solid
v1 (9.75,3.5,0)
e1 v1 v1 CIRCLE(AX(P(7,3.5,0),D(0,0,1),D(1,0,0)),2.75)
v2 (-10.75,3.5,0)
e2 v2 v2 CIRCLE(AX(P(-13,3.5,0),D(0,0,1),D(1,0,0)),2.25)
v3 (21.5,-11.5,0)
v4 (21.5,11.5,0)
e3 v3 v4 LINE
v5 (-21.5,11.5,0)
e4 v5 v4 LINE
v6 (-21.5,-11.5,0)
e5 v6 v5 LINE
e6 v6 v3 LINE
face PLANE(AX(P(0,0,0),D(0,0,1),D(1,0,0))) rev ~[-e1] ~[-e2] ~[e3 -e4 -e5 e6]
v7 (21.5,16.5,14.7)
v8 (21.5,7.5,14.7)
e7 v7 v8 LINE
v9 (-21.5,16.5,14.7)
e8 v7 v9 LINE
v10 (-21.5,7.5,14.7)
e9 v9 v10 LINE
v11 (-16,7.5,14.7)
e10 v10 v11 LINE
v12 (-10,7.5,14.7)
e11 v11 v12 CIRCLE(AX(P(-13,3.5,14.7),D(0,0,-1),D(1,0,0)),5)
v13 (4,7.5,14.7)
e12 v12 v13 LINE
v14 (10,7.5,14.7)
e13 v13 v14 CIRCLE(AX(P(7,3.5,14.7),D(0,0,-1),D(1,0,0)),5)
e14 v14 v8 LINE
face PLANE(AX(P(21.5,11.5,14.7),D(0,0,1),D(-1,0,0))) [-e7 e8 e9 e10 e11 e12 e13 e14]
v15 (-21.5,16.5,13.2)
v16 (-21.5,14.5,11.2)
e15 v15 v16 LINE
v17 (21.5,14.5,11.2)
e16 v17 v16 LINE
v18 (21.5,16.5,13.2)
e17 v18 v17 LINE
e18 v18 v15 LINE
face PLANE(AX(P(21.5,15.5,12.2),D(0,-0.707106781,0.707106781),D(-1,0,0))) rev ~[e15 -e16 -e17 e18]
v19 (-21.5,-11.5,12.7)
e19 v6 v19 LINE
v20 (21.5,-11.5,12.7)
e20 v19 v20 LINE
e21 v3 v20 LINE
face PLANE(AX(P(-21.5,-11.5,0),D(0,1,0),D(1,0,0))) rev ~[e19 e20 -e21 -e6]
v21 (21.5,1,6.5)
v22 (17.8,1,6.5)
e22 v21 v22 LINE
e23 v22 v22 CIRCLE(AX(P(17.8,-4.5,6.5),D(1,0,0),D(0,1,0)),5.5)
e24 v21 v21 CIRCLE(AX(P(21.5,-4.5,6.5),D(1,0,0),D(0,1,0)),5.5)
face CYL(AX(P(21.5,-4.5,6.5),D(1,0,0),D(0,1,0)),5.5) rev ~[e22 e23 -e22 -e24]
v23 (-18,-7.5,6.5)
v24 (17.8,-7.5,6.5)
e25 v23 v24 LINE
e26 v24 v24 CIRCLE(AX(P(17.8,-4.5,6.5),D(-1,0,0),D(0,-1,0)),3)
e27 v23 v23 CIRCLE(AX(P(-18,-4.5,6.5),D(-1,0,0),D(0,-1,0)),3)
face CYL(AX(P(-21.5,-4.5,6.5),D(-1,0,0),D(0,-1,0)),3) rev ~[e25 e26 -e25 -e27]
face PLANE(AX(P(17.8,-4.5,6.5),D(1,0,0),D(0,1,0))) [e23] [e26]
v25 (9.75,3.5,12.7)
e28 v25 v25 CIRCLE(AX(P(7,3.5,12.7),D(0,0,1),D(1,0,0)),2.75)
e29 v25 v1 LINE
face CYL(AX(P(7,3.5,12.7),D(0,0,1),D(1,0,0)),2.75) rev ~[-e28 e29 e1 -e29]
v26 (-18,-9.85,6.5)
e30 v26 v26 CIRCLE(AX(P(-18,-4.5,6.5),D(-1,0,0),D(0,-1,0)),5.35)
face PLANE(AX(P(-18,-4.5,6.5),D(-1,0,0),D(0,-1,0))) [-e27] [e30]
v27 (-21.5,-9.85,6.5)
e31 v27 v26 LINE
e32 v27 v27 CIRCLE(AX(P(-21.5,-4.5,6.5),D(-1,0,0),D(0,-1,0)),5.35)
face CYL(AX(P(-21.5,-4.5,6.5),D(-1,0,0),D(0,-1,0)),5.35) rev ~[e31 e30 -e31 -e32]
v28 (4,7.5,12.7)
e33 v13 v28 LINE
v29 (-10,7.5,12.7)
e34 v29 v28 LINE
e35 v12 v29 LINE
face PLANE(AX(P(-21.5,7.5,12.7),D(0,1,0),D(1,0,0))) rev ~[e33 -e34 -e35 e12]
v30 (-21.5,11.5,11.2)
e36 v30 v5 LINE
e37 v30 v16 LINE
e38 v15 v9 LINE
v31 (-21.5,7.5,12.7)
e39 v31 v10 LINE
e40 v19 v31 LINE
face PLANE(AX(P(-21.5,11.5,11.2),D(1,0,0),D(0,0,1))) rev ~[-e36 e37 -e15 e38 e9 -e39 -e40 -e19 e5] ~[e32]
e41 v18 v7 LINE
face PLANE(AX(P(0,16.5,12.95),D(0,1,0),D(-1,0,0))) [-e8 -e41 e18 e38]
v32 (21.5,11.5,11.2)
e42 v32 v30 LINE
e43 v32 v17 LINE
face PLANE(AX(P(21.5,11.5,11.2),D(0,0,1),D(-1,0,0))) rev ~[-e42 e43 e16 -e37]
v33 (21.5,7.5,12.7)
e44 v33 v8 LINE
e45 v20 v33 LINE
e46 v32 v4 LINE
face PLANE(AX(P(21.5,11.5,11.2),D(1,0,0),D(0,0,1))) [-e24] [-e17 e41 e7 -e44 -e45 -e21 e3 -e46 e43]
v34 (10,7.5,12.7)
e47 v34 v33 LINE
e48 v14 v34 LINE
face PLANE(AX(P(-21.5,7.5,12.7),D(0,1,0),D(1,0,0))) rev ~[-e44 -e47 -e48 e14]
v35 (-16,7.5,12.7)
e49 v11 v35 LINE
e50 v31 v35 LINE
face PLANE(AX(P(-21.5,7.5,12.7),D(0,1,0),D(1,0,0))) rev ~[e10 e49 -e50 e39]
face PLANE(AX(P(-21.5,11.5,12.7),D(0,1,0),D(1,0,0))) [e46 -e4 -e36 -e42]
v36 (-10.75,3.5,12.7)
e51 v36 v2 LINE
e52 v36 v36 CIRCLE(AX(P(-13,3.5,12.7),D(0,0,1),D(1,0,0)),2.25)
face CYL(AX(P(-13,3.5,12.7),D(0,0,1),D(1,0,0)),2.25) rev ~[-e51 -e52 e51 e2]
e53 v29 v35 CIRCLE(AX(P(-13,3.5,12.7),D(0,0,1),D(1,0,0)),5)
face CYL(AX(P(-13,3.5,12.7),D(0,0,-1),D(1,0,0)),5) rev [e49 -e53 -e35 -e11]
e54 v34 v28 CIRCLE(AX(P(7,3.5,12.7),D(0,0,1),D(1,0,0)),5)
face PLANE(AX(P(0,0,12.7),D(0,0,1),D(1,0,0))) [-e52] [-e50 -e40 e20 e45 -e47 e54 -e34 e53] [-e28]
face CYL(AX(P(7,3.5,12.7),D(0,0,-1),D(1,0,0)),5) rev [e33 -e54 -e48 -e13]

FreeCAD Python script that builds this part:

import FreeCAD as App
import Part
import Sketcher

V = App.Vector


def edges_at(feature, points):
    """Names of the edges that pass closest to the given points."""
    edges = feature.Shape.Edges
    near = lambda p: min(range(len(edges)), key=lambda i: edges[i].distToShape(Part.Vertex(*p))[0])
    return sorted({f"Edge{near(p) + 1}" for p in points})


def add_polygon(sketch, points):
    """Adds a closed chain of lines whose ends are joined by coincident constraints."""
    first, n = sketch.GeometryCount, len(points)
    for a, b in zip(points, points[1:] + points[:1]):
        sketch.addGeometry(Part.LineSegment(App.Vector(*a, 0), App.Vector(*b, 0)), False)
    for i in range(n):
        sketch.addConstraint(Sketcher.Constraint("Coincident", first + i, 2, first + (i + 1) % n, 1))

doc = App.newDocument("Part")
params = doc.addObject("Spreadsheet::Sheet", "Params")
for row, (alias, value) in enumerate([
    ("sketch1_width", "43 mm"),
    ("sketch1_height", "23 mm"),
    ("pad1_length", "12.7 mm"),
    ("sketch2_diameter", "5.5 mm"),
    ("sketch2_diameter2", "4.5 mm"),
    ("pocket1_length", "25.4 mm"),
    ("sketch3_diameter", "6 mm"),
    ("pocket2_length", "50.8 mm"),
    ("sketch4_diameter", "10.7 mm"),
    ("pocket3_length", "3.5 mm"),
    ("sketch5_diameter", "11 mm"),
    ("pocket4_length", "3.7 mm"),
    ("sketch6_width", "43 mm"),
    ("sketch6_height", "4 mm"),
    ("pad2_length", "2 mm"),
    ("sketch7_width", "43 mm"),
    ("sketch7_height", "3.5 mm"),
    ("pad3_length", "5 mm"),
    ("chamfer_size", "2 mm"),
    ("sketch8_diameter", "10 mm"),
    ("pocket5_length", "25 mm"),
], start=1):
    params.set(f"A{row}", alias)
    params.set(f"B{row}", "=" + value)
    params.setAlias(f"B{row}", alias)

body = doc.addObject("PartDesign::Body", "Body")

# Sketch on XY plane
sketch1 = doc.addObject("Sketcher::SketchObject", "Sketch")
body.addObject(sketch1)
sketch1.AttachmentSupport = (doc.XY_Plane, [""])
sketch1.MapMode = "FlatFace"
add_polygon(sketch1, [(-22, 12), (-22, -12), (22, -12), (22, 12)])  # lines 0-3
sketch1.addConstraint([
    Sketcher.Constraint("Vertical", 0),
    Sketcher.Constraint("Horizontal", 1),
    Sketcher.Constraint("Vertical", 2),
    Sketcher.Constraint("Horizontal", 3),
    Sketcher.Constraint("Symmetric", 0, 2, 2, 2, -1, 1),
    Sketcher.Constraint("DistanceX", 1, 1, 1, 2, 43.0),
    Sketcher.Constraint("DistanceY", 0, 2, 0, 1, 23.0),
])
sketch1.setExpression("Constraints[9]", "Params.sketch1_width")
sketch1.setExpression("Constraints[10]", "Params.sketch1_height")
pad1 = doc.addObject("PartDesign::Pad", "Pad")
body.addObject(pad1)
pad1.Profile = sketch1
pad1.setExpression("Length", "Params.pad1_length")

# Sketch on XY plane
sketch2 = doc.addObject("Sketcher::SketchObject", "Sketch001")
body.addObject(sketch2)
sketch2.AttachmentSupport = (doc.XY_Plane, [""])
sketch2.MapMode = "FlatFace"
sketch2.AttachmentOffset = App.Placement(V(0, 0, 12.7), App.Rotation())
sketch2.addGeometry([
    Part.Circle(V(7, 3.5, 0), V(0, 0, 1), 2.8),
    Part.Circle(V(-13, 3.5, 0), V(0, 0, 1), 2.2),
], False)
sketch2.addConstraint([
    Sketcher.Constraint("Horizontal", 0, 3, 1, 3),
    Sketcher.Constraint("Diameter", 0, 5.5),
    Sketcher.Constraint("Diameter", 1, 4.5),
    Sketcher.Constraint("DistanceX", -1, 1, 0, 3, 7.0),
    Sketcher.Constraint("DistanceX", 1, 3, -1, 1, 13.0),
    Sketcher.Constraint("DistanceY", -1, 1, 0, 3, 3.5),
])
sketch2.setExpression("Constraints[1]", "Params.sketch2_diameter")
sketch2.setExpression("Constraints[2]", "Params.sketch2_diameter2")
pocket1 = doc.addObject("PartDesign::Pocket", "Pocket")
body.addObject(pocket1)
pocket1.Profile = sketch2
pocket1.setExpression("Length", "Params.pocket1_length")

# Sketch on YZ plane
sketch3 = doc.addObject("Sketcher::SketchObject", "Sketch002")
body.addObject(sketch3)
sketch3.AttachmentSupport = (doc.YZ_Plane, [""])
sketch3.MapMode = "FlatFace"
sketch3.AttachmentOffset = App.Placement(V(0, 0, -21.5), App.Rotation())
sketch3.addGeometry(Part.Circle(V(-4.5, 6.5, 0), V(0, 0, 1), 3), False)
sketch3.addConstraint([
    Sketcher.Constraint("Diameter", 0, 6.0),
    Sketcher.Constraint("DistanceX", 0, 3, -1, 1, 4.5),
    Sketcher.Constraint("DistanceY", -1, 1, 0, 3, 6.5),
])
sketch3.setExpression("Constraints[0]", "Params.sketch3_diameter")
pocket2 = doc.addObject("PartDesign::Pocket", "Pocket001")
body.addObject(pocket2)
pocket2.Profile = sketch3
pocket2.setExpression("Length", "Params.pocket2_length")
pocket2.Reversed = True

# Sketch on YZ plane
sketch4 = doc.addObject("Sketcher::SketchObject", "Sketch003")
body.addObject(sketch4)
sketch4.AttachmentSupport = (doc.YZ_Plane, [""])
sketch4.MapMode = "FlatFace"
sketch4.AttachmentOffset = App.Placement(V(0, 0, -21.5), App.Rotation())
sketch4.addGeometry(Part.Circle(V(-4, 6, 0), V(0, 0, 1), 5), False)
sketch4.addConstraint([
    Sketcher.Constraint("Diameter", 0, 10.7),
    Sketcher.Constraint("DistanceX", 0, 3, -1, 1, 4.5),
    Sketcher.Constraint("DistanceY", -1, 1, 0, 3, 6.5),
])
sketch4.setExpression("Constraints[0]", "Params.sketch4_diameter")
pocket3 = doc.addObject("PartDesign::Pocket", "Pocket002")
body.addObject(pocket3)
pocket3.Profile = sketch4
pocket3.setExpression("Length", "Params.pocket3_length")
pocket3.Reversed = True

# Sketch on YZ plane
sketch5 = doc.addObject("Sketcher::SketchObject", "Sketch004")
body.addObject(sketch5)
sketch5.AttachmentSupport = (doc.YZ_Plane, [""])
sketch5.MapMode = "FlatFace"
sketch5.AttachmentOffset = App.Placement(V(0, 0, 21.5), App.Rotation())
sketch5.addGeometry(Part.Circle(V(-4, 6, 0), V(0, 0, 1), 6), False)
sketch5.addConstraint([
    Sketcher.Constraint("Diameter", 0, 11.0),
    Sketcher.Constraint("DistanceX", 0, 3, -1, 1, 4.5),
    Sketcher.Constraint("DistanceY", -1, 1, 0, 3, 6.5),
])
sketch5.setExpression("Constraints[0]", "Params.sketch5_diameter")
pocket4 = doc.addObject("PartDesign::Pocket", "Pocket003")
body.addObject(pocket4)
pocket4.Profile = sketch5
pocket4.setExpression("Length", "Params.pocket4_length")

# Sketch on XY plane
sketch6 = doc.addObject("Sketcher::SketchObject", "Sketch005")
body.addObject(sketch6)
sketch6.AttachmentSupport = (doc.XY_Plane, [""])
sketch6.MapMode = "FlatFace"
sketch6.AttachmentOffset = App.Placement(V(0, 0, 12.7), App.Rotation())
add_polygon(sketch6, [(-21.5, 11.5), (-21.5, 7.5), (21.5, 7.5), (21.5, 11.5)])  # lines 0-3
sketch6.addConstraint([
    Sketcher.Constraint("Vertical", 0),
    Sketcher.Constraint("Horizontal", 1),
    Sketcher.Constraint("Vertical", 2),
    Sketcher.Constraint("Horizontal", 3),
    Sketcher.Constraint("DistanceX", 1, 1, 1, 2, 43.0),
    Sketcher.Constraint("DistanceY", 0, 2, 0, 1, 4.0),
    Sketcher.Constraint("DistanceX", 0, 2, -1, 1, 21.5),
    Sketcher.Constraint("DistanceY", -1, 1, 0, 2, 7.5),
])
sketch6.setExpression("Constraints[8]", "Params.sketch6_width")
sketch6.setExpression("Constraints[9]", "Params.sketch6_height")
pad2 = doc.addObject("PartDesign::Pad", "Pad001")
body.addObject(pad2)
pad2.Profile = sketch6
pad2.setExpression("Length", "Params.pad2_length")

# Sketch on XZ plane
sketch7 = doc.addObject("Sketcher::SketchObject", "Sketch006")
body.addObject(sketch7)
sketch7.AttachmentSupport = (doc.XZ_Plane, [""])
sketch7.MapMode = "FlatFace"
sketch7.AttachmentOffset = App.Placement(V(0, 0, -11.5), App.Rotation())
add_polygon(sketch7, [(21.5, 14.7), (21.5, 11.2), (-21.5, 11.2), (-21.5, 14.7)])  # lines 0-3
sketch7.addConstraint([
    Sketcher.Constraint("Vertical", 0),
    Sketcher.Constraint("Horizontal", 1),
    Sketcher.Constraint("Vertical", 2),
    Sketcher.Constraint("Horizontal", 3),
    Sketcher.Constraint("DistanceX", 1, 2, 1, 1, 43.0),
    Sketcher.Constraint("DistanceY", 0, 2, 0, 1, 3.5),
    Sketcher.Constraint("DistanceX", -1, 1, 0, 2, 21.5),
    Sketcher.Constraint("DistanceY", -1, 1, 0, 2, 11.2),
])
sketch7.setExpression("Constraints[8]", "Params.sketch7_width")
sketch7.setExpression("Constraints[9]", "Params.sketch7_height")
pad3 = doc.addObject("PartDesign::Pad", "Pad002")
body.addObject(pad3)
pad3.Profile = sketch7
pad3.setExpression("Length", "Params.pad3_length")
pad3.Reversed = True
doc.recompute()

chamfer = doc.addObject("PartDesign::Chamfer", "Chamfer")
body.addObject(chamfer)
chamfer.Base = (pad3, edges_at(pad3, [(0, 16.5, 11.2)]))
chamfer.setExpression("Size", "Params.chamfer_size")

# Sketch on XY plane
sketch8 = doc.addObject("Sketcher::SketchObject", "Sketch007")
body.addObject(sketch8)
sketch8.AttachmentSupport = (doc.XY_Plane, [""])
sketch8.MapMode = "FlatFace"
sketch8.AttachmentOffset = App.Placement(V(0, 0, 12.7), App.Rotation())
sketch8.addGeometry([
    Part.Circle(V(-13, 4, 0), V(0, 0, 1), 5),
    Part.Circle(V(7, 4, 0), V(0, 0, 1), 5),
], False)
sketch8.addConstraint([
    Sketcher.Constraint("Equal", 0, 1),
    Sketcher.Constraint("Horizontal", 0, 3, 1, 3),
    Sketcher.Constraint("Diameter", 0, 10.0),
    Sketcher.Constraint("DistanceX", 0, 3, -1, 1, 13.0),
    Sketcher.Constraint("DistanceX", -1, 1, 1, 3, 7.0),
    Sketcher.Constraint("DistanceY", -1, 1, 0, 3, 3.5),
])
sketch8.setExpression("Constraints[2]", "Params.sketch8_diameter")
pocket5 = doc.addObject("PartDesign::Pocket", "Pocket004")
body.addObject(pocket5)
pocket5.Profile = sketch8
pocket5.setExpression("Length", "Params.pocket5_length")
pocket5.Reversed = True

doc.recompute()
